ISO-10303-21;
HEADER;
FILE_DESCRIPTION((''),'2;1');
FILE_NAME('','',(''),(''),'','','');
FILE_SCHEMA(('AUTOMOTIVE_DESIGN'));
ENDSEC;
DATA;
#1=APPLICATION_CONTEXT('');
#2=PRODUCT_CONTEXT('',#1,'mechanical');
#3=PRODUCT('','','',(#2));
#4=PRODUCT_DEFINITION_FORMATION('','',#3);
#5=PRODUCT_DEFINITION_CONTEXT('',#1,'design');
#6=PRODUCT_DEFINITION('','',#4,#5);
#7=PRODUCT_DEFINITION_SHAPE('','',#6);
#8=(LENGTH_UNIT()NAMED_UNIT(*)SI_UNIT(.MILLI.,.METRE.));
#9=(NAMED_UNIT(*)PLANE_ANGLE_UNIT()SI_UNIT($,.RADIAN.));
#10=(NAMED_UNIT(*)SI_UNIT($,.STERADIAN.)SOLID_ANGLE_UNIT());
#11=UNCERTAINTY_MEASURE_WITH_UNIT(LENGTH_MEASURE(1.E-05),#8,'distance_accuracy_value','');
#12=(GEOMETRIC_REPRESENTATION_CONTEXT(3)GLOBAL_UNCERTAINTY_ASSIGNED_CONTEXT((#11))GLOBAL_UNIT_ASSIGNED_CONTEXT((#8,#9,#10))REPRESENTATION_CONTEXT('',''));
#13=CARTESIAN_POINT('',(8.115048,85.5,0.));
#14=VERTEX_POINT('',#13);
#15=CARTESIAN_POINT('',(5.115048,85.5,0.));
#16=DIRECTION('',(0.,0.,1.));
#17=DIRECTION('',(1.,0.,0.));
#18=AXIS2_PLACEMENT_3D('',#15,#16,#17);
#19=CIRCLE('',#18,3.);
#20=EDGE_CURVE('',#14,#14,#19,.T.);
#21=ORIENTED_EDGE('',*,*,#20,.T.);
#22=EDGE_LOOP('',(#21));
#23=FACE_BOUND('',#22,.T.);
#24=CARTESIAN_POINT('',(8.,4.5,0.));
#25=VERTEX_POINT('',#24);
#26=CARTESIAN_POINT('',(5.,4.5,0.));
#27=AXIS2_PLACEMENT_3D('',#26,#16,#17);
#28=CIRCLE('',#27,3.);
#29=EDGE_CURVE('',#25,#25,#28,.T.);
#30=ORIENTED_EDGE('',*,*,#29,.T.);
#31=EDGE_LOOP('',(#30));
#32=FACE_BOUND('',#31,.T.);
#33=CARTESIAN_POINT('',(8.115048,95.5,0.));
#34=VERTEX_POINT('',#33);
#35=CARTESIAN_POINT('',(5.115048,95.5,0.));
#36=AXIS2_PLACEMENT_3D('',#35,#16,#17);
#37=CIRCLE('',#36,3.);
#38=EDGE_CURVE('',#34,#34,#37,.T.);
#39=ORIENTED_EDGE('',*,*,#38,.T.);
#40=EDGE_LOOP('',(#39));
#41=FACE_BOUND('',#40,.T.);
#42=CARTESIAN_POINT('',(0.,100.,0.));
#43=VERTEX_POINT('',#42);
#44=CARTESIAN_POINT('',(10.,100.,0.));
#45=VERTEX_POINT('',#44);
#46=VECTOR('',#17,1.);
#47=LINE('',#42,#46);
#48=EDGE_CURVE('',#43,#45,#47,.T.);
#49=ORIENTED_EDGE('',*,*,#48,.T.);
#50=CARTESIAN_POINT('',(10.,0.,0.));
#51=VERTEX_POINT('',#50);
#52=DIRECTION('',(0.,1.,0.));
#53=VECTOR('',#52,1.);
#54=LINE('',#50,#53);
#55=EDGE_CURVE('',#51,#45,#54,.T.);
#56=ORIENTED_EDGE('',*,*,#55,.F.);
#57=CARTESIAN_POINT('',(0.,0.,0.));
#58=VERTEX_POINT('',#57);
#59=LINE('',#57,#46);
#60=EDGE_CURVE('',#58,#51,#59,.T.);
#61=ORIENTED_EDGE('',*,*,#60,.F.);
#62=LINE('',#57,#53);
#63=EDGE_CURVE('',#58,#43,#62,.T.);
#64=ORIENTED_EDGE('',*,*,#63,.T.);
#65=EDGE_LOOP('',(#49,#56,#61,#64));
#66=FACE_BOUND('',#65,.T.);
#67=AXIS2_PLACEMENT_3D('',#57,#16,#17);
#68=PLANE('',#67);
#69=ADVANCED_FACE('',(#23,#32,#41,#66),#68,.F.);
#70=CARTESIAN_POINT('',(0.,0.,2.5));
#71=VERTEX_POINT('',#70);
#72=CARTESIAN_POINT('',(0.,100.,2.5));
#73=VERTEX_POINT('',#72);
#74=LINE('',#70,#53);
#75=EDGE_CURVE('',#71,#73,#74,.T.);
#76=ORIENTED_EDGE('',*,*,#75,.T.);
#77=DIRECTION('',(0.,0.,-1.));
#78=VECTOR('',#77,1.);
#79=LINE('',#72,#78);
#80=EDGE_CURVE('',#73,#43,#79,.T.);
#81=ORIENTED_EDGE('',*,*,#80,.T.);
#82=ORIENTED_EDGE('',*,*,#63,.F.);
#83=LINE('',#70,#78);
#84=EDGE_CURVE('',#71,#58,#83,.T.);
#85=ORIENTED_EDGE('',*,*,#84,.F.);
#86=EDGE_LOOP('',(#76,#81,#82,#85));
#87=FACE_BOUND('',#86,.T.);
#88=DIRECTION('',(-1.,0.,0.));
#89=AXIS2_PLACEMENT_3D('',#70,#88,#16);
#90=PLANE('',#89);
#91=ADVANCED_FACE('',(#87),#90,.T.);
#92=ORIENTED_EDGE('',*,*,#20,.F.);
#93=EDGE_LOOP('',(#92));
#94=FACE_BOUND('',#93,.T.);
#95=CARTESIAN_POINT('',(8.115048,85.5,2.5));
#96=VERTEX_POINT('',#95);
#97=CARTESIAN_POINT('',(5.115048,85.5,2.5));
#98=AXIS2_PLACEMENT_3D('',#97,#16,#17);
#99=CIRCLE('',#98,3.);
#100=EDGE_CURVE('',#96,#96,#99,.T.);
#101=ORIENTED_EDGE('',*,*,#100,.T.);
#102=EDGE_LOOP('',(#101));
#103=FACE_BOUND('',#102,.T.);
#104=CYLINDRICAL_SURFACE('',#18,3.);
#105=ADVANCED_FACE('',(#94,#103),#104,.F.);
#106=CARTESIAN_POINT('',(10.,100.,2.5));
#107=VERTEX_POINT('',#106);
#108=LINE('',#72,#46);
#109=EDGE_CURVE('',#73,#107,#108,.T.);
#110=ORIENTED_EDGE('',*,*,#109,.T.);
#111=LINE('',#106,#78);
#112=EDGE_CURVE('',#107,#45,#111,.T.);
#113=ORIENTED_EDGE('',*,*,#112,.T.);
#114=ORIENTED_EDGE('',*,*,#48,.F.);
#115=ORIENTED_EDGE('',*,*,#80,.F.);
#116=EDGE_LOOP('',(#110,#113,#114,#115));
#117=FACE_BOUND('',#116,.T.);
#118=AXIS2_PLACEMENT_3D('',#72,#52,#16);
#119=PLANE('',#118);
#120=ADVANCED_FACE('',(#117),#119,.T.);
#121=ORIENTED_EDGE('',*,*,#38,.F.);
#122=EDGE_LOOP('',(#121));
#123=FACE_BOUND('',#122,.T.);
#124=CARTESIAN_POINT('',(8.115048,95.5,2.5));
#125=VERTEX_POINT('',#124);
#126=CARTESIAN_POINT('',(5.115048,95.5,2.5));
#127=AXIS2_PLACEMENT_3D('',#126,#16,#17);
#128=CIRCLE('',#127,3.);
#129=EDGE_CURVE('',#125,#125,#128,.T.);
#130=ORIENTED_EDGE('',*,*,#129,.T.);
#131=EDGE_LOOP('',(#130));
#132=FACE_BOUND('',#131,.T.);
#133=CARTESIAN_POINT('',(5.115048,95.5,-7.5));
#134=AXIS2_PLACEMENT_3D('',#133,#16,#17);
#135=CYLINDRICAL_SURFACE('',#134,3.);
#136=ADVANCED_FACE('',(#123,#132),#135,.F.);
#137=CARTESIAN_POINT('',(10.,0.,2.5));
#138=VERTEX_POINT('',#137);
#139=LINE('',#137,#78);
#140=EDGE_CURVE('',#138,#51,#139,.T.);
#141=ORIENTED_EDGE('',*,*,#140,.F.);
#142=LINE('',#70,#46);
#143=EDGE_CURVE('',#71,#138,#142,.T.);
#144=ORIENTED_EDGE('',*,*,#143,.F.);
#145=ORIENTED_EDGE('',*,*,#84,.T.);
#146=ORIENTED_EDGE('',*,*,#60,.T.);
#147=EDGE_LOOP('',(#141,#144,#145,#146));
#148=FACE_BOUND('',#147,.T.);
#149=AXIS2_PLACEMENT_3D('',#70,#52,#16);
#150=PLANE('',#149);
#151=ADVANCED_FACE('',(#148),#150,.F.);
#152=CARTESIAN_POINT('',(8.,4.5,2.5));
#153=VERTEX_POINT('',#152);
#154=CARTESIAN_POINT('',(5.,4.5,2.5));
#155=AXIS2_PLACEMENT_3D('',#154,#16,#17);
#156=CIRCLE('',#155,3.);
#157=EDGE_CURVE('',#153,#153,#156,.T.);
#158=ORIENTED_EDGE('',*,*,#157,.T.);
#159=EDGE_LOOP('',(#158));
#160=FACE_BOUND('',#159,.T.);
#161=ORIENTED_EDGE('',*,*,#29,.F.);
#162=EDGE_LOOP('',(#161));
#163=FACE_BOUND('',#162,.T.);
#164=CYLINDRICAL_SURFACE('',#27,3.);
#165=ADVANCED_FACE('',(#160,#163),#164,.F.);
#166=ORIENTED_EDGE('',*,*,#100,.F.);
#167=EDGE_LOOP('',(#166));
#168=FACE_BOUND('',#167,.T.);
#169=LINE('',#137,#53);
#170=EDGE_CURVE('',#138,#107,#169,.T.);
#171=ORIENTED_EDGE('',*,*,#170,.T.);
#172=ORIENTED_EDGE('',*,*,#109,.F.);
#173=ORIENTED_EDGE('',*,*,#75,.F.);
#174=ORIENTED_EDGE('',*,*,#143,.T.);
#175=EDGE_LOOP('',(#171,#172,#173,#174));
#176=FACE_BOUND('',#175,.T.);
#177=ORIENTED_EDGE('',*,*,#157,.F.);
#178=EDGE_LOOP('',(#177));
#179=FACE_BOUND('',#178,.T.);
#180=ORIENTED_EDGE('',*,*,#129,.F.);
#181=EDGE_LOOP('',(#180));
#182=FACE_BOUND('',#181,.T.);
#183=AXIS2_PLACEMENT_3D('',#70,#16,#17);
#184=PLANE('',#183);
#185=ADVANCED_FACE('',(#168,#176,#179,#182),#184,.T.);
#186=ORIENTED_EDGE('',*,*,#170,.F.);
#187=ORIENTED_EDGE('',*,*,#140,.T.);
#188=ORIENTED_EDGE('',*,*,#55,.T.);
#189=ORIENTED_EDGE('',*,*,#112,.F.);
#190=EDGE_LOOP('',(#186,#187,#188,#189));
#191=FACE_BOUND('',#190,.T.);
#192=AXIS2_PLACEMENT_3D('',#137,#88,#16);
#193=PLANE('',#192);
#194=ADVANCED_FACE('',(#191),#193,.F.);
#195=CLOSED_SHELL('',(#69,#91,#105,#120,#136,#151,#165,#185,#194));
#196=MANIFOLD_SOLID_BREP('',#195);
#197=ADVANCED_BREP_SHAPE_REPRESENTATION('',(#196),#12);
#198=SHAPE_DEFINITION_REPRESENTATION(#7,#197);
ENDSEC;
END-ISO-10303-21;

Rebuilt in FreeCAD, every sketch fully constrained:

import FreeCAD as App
import Part
import Sketcher
Q = App.Units.Quantity


def add_polygon(sketch, points):
    """Adds a closed chain of lines whose ends are joined by coincident constraints."""
    first, n = sketch.GeometryCount, len(points)
    for a, b in zip(points, points[1:] + points[:1]):
        sketch.addGeometry(Part.LineSegment(App.Vector(*a, 0), App.Vector(*b, 0)), False)
    for i in range(n):
        sketch.addConstraint(Sketcher.Constraint("Coincident", first + i, 2, first + (i + 1) % n, 1))

doc = App.newDocument("Part")
body = doc.addObject("PartDesign::Body", "Body")

# Sketch on XY plane
sketch1 = body.newObject("Sketcher::SketchObject", "Sketch")
sketch1.AttachmentSupport = (doc.getObject("XY_Plane"), [""])
sketch1.MapMode = "FlatFace"
add_polygon(sketch1, [(0, 100), (0, 0), (10, 0), (10, 100)])  # lines 0-3
sketch1.addConstraint(Sketcher.Constraint("Vertical", 0))
sketch1.addConstraint(Sketcher.Constraint("Horizontal", 1))
sketch1.addConstraint(Sketcher.Constraint("Vertical", 2))
sketch1.addConstraint(Sketcher.Constraint("Horizontal", 3))
sketch1.addConstraint(Sketcher.Constraint("Coincident", 0, 2, -1, 1))
sketch1.addConstraint(Sketcher.Constraint("DistanceX", 1, 1, 1, 2, Q("10 mm")))
sketch1.addConstraint(Sketcher.Constraint("DistanceY", 0, 2, 0, 1, Q("100 mm")))
pad1 = body.newObject("PartDesign::Pad", "Pad")
pad1.Profile = sketch1
pad1.Length = 2.5

# Sketch on XY plane
sketch2 = body.newObject("Sketcher::SketchObject", "Sketch001")
sketch2.AttachmentSupport = (doc.getObject("XY_Plane"), [""])
sketch2.MapMode = "FlatFace"
sketch2.AttachmentOffset = App.Placement(App.Vector(0, 0, 2.5), App.Rotation())
sketch2.addGeometry(Part.Circle(App.Vector(5, 4.5, 0), App.Vector(0, 0, 1), 3), False)
sketch2.addConstraint(Sketcher.Constraint("Diameter", 0, Q("6 mm")))
sketch2.addConstraint(Sketcher.Constraint("DistanceX", -1, 1, 0, 3, Q("5 mm")))
sketch2.addConstraint(Sketcher.Constraint("DistanceY", -1, 1, 0, 3, Q("4.5 mm")))
pocket1 = body.newObject("PartDesign::Pocket", "Pocket")
pocket1.Profile = sketch2
pocket1.Type = "ThroughAll"

# Sketch on XY plane
sketch3 = body.newObject("Sketcher::SketchObject", "Sketch002")
sketch3.AttachmentSupport = (doc.getObject("XY_Plane"), [""])
sketch3.MapMode = "FlatFace"
sketch3.AttachmentOffset = App.Placement(App.Vector(0, 0, 2.5), App.Rotation())
sketch3.addGeometry(Part.Circle(App.Vector(5.1, 85.5, 0), App.Vector(0, 0, 1), 3), False)
sketch3.addConstraint(Sketcher.Constraint("Diameter", 0, Q("6 mm")))
sketch3.addConstraint(Sketcher.Constraint("DistanceY", -1, 1, 0, 3, Q("85.5 mm")))
sketch3.addConstraint(Sketcher.Constraint("DistanceX", -1, 1, 0, 3, Q("5.115048 mm")))
pocket2 = body.newObject("PartDesign::Pocket", "Pocket001")
pocket2.Profile = sketch3
pocket2.Type = "ThroughAll"

# Sketch on XY plane
sketch4 = body.newObject("Sketcher::SketchObject", "Sketch003")
sketch4.AttachmentSupport = (doc.getObject("XY_Plane"), [""])
sketch4.MapMode = "FlatFace"
sketch4.AttachmentOffset = App.Placement(App.Vector(0, 0, 2.5), App.Rotation())
sketch4.addGeometry(Part.Circle(App.Vector(5.1, 95.5, 0), App.Vector(0, 0, 1), 3), False)
sketch4.addConstraint(Sketcher.Constraint("Diameter", 0, Q("6 mm")))
sketch4.addConstraint(Sketcher.Constraint("DistanceY", -1, 1, 0, 3, Q("95.5 mm")))
sketch4.addConstraint(Sketcher.Constraint("DistanceX", -1, 1, 0, 3, Q("5.115048 mm")))
pocket3 = body.newObject("PartDesign::Pocket", "Pocket002")
pocket3.Profile = sketch4
pocket3.Length = 10

doc.recompute()
